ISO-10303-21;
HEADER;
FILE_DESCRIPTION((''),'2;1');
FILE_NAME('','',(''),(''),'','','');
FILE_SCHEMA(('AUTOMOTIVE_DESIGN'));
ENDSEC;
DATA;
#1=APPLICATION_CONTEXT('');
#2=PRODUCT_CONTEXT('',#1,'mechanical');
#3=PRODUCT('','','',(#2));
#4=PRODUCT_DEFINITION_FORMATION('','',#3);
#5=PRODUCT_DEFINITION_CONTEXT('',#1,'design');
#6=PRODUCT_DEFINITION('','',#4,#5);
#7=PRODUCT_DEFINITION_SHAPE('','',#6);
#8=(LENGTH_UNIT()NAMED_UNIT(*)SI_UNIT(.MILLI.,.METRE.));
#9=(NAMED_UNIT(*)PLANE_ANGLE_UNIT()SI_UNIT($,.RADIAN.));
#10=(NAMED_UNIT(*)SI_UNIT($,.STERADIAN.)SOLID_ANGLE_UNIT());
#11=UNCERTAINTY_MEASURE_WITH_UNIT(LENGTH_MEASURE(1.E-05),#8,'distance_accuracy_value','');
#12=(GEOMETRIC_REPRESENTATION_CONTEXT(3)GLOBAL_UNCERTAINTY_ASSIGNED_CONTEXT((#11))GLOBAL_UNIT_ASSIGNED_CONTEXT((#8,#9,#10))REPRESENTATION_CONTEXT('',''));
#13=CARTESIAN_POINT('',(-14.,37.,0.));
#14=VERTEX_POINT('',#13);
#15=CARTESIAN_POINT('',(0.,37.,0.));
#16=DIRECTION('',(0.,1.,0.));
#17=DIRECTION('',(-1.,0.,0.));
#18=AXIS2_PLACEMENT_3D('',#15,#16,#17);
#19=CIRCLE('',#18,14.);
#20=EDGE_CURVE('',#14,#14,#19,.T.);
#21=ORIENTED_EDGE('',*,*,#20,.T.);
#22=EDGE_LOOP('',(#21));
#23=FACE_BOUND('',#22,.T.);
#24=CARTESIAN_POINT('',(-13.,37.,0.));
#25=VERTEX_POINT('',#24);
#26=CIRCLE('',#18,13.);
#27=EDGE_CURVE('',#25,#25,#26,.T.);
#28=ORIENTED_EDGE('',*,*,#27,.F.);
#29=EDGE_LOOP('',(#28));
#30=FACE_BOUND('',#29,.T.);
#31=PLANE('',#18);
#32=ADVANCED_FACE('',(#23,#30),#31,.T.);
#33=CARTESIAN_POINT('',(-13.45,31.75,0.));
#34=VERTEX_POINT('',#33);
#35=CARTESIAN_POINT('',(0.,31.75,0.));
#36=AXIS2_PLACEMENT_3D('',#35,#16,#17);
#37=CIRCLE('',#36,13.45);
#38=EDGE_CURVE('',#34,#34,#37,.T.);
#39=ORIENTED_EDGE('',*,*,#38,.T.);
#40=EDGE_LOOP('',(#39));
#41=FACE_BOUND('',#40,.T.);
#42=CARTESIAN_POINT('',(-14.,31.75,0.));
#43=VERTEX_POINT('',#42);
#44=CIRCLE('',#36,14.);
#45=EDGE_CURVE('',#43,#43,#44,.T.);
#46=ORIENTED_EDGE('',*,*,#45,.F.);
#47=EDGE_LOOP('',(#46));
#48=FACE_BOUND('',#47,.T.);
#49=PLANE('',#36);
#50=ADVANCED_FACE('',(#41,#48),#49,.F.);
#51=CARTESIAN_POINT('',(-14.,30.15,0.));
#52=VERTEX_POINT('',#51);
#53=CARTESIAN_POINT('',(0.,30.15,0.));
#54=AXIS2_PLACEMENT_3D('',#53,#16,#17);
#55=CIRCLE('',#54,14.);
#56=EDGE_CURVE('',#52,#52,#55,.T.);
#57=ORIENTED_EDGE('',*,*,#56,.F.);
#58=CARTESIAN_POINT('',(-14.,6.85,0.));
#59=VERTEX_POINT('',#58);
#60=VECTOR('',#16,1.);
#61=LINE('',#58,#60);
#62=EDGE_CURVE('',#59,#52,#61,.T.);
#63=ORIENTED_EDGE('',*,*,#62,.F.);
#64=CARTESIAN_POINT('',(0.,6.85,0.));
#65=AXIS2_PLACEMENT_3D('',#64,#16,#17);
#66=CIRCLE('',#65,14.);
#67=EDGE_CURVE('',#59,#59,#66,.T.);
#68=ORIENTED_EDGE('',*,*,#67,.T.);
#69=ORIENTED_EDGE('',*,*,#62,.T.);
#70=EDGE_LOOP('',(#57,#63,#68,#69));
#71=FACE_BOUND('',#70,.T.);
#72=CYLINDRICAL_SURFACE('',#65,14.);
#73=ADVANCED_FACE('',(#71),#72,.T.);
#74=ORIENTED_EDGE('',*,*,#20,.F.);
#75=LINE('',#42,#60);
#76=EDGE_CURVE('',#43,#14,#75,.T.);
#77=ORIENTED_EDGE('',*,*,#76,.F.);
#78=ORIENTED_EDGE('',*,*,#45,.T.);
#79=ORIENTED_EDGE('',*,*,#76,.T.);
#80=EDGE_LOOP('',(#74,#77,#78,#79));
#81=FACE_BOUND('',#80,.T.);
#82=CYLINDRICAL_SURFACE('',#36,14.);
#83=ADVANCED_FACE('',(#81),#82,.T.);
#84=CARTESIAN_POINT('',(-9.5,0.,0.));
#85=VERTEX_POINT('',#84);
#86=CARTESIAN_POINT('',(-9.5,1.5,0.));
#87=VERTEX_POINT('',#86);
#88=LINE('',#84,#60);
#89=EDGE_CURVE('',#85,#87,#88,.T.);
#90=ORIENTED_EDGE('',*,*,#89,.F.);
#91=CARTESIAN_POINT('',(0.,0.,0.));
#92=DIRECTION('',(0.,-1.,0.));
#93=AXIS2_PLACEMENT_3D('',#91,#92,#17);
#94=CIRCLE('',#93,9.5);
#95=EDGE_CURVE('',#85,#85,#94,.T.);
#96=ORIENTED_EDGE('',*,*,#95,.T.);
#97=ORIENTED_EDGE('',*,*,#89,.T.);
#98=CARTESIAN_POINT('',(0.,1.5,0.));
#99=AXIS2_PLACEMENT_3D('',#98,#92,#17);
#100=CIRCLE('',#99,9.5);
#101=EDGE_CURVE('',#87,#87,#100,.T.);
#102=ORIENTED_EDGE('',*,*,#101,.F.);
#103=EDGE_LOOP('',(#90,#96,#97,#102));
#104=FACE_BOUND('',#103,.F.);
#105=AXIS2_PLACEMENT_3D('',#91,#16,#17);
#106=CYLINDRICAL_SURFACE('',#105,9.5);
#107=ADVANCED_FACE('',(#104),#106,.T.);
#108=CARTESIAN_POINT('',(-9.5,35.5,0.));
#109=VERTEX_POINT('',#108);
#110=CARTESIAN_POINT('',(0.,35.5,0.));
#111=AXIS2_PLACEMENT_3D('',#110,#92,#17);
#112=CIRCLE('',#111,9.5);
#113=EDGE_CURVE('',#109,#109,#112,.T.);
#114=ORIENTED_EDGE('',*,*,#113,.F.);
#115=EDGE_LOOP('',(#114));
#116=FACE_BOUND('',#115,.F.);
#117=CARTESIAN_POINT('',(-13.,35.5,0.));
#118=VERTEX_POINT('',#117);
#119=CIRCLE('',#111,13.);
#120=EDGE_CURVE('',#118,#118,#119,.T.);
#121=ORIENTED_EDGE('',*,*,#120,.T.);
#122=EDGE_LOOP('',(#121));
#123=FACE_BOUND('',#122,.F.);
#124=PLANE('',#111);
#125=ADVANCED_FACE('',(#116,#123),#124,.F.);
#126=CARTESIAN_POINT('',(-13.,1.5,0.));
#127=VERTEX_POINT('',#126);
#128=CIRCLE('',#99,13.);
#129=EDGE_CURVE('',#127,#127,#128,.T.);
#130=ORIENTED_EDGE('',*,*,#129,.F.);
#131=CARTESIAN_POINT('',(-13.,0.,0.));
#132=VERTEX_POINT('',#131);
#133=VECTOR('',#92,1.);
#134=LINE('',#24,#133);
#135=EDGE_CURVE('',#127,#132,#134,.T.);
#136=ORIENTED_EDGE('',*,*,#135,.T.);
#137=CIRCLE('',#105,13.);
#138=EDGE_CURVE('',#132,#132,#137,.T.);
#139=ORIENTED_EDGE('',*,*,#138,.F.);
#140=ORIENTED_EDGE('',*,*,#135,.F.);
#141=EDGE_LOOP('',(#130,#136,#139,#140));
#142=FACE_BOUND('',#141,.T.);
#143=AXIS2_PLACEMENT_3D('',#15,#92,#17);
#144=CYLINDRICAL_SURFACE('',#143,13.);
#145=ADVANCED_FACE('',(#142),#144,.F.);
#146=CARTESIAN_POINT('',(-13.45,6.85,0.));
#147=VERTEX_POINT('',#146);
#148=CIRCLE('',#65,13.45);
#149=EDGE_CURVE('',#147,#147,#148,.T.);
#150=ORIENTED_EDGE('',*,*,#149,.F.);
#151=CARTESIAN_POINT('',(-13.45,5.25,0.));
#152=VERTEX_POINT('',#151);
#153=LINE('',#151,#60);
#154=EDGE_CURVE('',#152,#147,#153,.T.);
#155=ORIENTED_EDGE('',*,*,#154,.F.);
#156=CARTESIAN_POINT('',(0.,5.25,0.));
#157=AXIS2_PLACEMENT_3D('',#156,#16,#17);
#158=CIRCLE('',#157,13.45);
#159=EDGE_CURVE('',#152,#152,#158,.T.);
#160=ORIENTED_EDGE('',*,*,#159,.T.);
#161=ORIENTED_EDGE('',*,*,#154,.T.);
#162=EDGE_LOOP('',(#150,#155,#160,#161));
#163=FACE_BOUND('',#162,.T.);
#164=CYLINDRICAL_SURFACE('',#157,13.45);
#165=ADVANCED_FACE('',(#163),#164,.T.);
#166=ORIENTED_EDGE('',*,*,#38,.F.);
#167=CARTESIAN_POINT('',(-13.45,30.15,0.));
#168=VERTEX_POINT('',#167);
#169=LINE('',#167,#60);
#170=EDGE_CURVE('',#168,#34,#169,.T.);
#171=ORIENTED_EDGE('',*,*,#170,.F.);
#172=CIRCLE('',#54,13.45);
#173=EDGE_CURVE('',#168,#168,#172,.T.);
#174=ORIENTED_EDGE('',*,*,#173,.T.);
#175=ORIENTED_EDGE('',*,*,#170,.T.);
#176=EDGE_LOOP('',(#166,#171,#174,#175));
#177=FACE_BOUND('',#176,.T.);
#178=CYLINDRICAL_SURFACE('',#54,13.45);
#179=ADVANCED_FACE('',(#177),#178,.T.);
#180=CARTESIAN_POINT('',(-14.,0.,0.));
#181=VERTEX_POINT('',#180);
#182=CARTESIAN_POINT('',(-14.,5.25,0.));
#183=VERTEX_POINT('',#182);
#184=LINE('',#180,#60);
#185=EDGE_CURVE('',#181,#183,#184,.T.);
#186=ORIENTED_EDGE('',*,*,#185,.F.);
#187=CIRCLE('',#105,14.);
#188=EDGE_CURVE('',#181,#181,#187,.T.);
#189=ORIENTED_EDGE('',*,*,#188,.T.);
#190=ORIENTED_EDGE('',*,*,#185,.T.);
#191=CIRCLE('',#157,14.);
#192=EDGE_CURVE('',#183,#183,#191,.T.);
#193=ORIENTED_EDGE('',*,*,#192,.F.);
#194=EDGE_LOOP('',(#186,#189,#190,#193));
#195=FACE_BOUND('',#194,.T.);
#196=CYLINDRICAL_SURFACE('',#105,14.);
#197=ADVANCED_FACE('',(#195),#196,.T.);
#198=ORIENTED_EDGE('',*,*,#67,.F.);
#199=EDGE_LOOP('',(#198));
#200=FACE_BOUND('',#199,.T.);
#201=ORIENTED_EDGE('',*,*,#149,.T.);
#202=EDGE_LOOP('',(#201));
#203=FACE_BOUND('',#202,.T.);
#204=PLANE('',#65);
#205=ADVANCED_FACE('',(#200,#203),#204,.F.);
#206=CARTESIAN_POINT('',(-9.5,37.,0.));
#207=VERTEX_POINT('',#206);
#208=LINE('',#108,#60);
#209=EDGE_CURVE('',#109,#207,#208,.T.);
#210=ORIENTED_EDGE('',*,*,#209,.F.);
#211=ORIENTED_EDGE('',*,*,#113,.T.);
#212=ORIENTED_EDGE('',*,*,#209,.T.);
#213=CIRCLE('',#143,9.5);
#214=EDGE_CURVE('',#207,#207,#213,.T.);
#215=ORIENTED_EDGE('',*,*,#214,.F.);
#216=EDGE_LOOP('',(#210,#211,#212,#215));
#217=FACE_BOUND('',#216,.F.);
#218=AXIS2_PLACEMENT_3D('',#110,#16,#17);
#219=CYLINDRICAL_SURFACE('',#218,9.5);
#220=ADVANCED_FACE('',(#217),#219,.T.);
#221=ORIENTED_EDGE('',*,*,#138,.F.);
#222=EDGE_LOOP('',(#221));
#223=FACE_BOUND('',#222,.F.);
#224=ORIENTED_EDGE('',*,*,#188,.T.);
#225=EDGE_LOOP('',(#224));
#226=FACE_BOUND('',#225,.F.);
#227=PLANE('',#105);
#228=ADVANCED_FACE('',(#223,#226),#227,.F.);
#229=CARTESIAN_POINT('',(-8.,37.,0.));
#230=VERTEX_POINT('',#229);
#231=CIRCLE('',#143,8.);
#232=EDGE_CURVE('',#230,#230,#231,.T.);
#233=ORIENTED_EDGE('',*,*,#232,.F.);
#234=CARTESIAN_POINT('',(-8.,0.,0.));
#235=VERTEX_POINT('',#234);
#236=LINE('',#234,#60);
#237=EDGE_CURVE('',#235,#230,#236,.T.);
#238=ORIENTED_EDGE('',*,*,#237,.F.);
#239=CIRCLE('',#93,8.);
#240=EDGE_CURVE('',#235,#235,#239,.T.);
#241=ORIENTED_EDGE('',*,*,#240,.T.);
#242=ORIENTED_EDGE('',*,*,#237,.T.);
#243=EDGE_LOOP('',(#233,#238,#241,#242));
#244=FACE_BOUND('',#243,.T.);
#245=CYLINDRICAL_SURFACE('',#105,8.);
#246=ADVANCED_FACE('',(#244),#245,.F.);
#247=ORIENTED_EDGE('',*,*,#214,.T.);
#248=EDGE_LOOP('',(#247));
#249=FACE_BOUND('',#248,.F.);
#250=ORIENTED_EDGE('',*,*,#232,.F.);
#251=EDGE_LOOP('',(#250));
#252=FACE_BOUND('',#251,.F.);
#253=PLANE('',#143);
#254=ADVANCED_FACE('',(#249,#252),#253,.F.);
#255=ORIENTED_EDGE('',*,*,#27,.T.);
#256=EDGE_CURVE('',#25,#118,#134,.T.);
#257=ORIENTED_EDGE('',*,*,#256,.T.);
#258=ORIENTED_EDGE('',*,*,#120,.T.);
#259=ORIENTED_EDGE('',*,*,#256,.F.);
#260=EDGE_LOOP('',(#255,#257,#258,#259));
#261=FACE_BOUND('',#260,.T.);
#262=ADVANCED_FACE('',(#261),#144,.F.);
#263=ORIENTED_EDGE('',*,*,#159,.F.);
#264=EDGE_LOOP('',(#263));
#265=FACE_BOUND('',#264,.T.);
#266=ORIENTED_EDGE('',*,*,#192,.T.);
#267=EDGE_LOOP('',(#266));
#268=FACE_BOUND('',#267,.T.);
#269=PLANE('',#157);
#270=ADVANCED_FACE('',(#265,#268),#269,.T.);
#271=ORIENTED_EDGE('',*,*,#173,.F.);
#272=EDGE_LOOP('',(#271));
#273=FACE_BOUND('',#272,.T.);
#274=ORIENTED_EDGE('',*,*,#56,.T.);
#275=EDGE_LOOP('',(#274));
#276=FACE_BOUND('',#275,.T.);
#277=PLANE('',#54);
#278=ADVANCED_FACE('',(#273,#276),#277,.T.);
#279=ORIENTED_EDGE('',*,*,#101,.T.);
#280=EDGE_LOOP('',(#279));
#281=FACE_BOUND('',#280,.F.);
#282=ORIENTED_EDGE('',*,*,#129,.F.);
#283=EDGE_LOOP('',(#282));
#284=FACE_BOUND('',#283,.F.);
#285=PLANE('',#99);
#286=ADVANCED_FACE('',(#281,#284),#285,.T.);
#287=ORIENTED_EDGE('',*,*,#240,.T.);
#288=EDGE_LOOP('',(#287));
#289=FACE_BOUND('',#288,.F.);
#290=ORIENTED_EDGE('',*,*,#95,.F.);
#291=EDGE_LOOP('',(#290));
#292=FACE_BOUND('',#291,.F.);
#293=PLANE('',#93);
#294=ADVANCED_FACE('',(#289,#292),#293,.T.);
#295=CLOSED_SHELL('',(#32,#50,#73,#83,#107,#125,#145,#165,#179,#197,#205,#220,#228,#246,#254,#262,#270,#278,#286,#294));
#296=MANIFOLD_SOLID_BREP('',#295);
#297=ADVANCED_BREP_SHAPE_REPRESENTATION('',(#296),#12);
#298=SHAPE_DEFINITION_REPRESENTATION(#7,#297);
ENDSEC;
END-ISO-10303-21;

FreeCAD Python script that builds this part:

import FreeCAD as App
import Part
import Sketcher

doc = App.newDocument("Part")
params = doc.addObject("Spreadsheet::Sheet", "Params")
for row, (alias, value) in enumerate([
    ("sketch1_height", "37 mm"),
    ("sketch1_height2", "34 mm"),
    ("revolution_angle", "360 deg"),
    ("sketch2_width", "1 mm"),
    ("sketch2_height", "37 mm"),
    ("sketch2_height2", "1.6 mm"),
    ("sketch2_width2", "0.55 mm"),
    ("sketch2_height3", "5.25 mm"),
    ("revolution2_angle", "360 deg"),
], start=1):
    params.set(f"A{row}", alias)
    params.set(f"B{row}", "=" + value)
    params.setAlias(f"B{row}", alias)

body = doc.addObject("PartDesign::Body", "Body")

# Sketch on XY plane
sketch1 = body.newObject("Sketcher::SketchObject", "Sketch")
sketch1.AttachmentSupport = (doc.getObject("XY_Plane"), [""])
sketch1.MapMode = "FlatFace"
sketch1.addGeometry(Part.LineSegment(App.Vector(-9.5, 0, 0), App.Vector(-8, 0, 0)), False)
sketch1.addGeometry(Part.LineSegment(App.Vector(-8, 0, 0), App.Vector(-8, 37, 0)), False)
sketch1.addGeometry(Part.LineSegment(App.Vector(-8, 37, 0), App.Vector(-9.5, 37, 0)), False)
sketch1.addGeometry(Part.LineSegment(App.Vector(-9.5, 37, 0), App.Vector(-9.5, 35.5, 0)), False)
sketch1.addGeometry(Part.LineSegment(App.Vector(-9.5, 35.5, 0), App.Vector(-13, 35.5, 0)), False)
sketch1.addGeometry(Part.LineSegment(App.Vector(-13, 35.5, 0), App.Vector(-13, 1.5, 0)), False)
sketch1.addGeometry(Part.LineSegment(App.Vector(-13, 1.5, 0), App.Vector(-9.5, 1.5, 0)), False)
sketch1.addGeometry(Part.LineSegment(App.Vector(-9.5, 1.5, 0), App.Vector(-9.5, 0, 0)), False)
sketch1.addConstraint(Sketcher.Constraint("Coincident", 0, 2, 1, 1))
sketch1.addConstraint(Sketcher.Constraint("Coincident", 1, 2, 2, 1))
sketch1.addConstraint(Sketcher.Constraint("Coincident", 2, 2, 3, 1))
sketch1.addConstraint(Sketcher.Constraint("Coincident", 3, 2, 4, 1))
sketch1.addConstraint(Sketcher.Constraint("Coincident", 4, 2, 5, 1))
sketch1.addConstraint(Sketcher.Constraint("Coincident", 5, 2, 6, 1))
sketch1.addConstraint(Sketcher.Constraint("Coincident", 6, 2, 7, 1))
sketch1.addConstraint(Sketcher.Constraint("Coincident", 7, 2, 0, 1))
sketch1.addConstraint(Sketcher.Constraint("Horizontal", 0))
sketch1.addConstraint(Sketcher.Constraint("Vertical", 1))
sketch1.addConstraint(Sketcher.Constraint("Horizontal", 2))
sketch1.addConstraint(Sketcher.Constraint("Vertical", 3))
sketch1.addConstraint(Sketcher.Constraint("Horizontal", 4))
sketch1.addConstraint(Sketcher.Constraint("Vertical", 5))
sketch1.addConstraint(Sketcher.Constraint("Horizontal", 6))
sketch1.addConstraint(Sketcher.Constraint("Vertical", 7))
sketch1.addConstraint(Sketcher.Constraint("PointOnObject", 0, 2, -1))
sketch1.addConstraint(Sketcher.Constraint("Vertical", 3, 2, 6, 2))
sketch1.addConstraint(Sketcher.Constraint("Equal", 2, 3))
sketch1.addConstraint(Sketcher.Constraint("Equal", 3, 7))
sketch1.addConstraint(Sketcher.Constraint("DistanceY", 1, 1, 1, 2, 37.0))
sketch1.addConstraint(Sketcher.Constraint("DistanceY", 5, 2, 5, 1, 34.0))
sketch1.addConstraint(Sketcher.Constraint("DistanceX", 0, 2, -1, 1, 8.0))
sketch1.addConstraint(Sketcher.Constraint("DistanceX", 4, 2, 1, 2, 5.0))
sketch1.setExpression("Constraints[20]", "Params.sketch1_height")
sketch1.setExpression("Constraints[21]", "Params.sketch1_height2")
revolution = body.newObject("PartDesign::Revolution", "Revolution")
revolution.Profile = sketch1
revolution.ReferenceAxis = (sketch1, ["V_Axis"])
revolution.setExpression("Angle", "Params.revolution_angle")

# Sketch on XY plane
sketch2 = body.newObject("Sketcher::SketchObject", "Sketch001")
sketch2.AttachmentSupport = (doc.getObject("XY_Plane"), [""])
sketch2.MapMode = "FlatFace"
sketch2.addGeometry(Part.LineSegment(App.Vector(-14, 5.2, 0), App.Vector(-14, 0, 0)), False)
sketch2.addGeometry(Part.LineSegment(App.Vector(-14, 0, 0), App.Vector(-13, 0, 0)), False)
sketch2.addGeometry(Part.LineSegment(App.Vector(-13, 0, 0), App.Vector(-13, 37, 0)), False)
sketch2.addGeometry(Part.LineSegment(App.Vector(-13, 37, 0), App.Vector(-14, 37, 0)), False)
sketch2.addGeometry(Part.LineSegment(App.Vector(-14, 37, 0), App.Vector(-14, 31.8, 0)), False)
sketch2.addGeometry(Part.LineSegment(App.Vector(-14, 31.8, 0), App.Vector(-13.4, 31.8, 0)), False)
sketch2.addGeometry(Part.LineSegment(App.Vector(-13.4, 31.8, 0), App.Vector(-13.4, 30.1, 0)), False)
sketch2.addGeometry(Part.LineSegment(App.Vector(-13.4, 30.1, 0), App.Vector(-14, 30.1, 0)), False)
sketch2.addGeometry(Part.LineSegment(App.Vector(-14, 30.1, 0), App.Vector(-14, 6.8, 0)), False)
sketch2.addGeometry(Part.LineSegment(App.Vector(-14, 6.8, 0), App.Vector(-13.4, 6.8, 0)), False)
sketch2.addGeometry(Part.LineSegment(App.Vector(-13.4, 6.8, 0), App.Vector(-13.4, 5.2, 0)), False)
sketch2.addGeometry(Part.LineSegment(App.Vector(-13.4, 5.2, 0), App.Vector(-14, 5.2, 0)), False)
sketch2.addConstraint(Sketcher.Constraint("Coincident", 0, 2, 1, 1))
sketch2.addConstraint(Sketcher.Constraint("Coincident", 1, 2, 2, 1))
sketch2.addConstraint(Sketcher.Constraint("Coincident", 2, 2, 3, 1))
sketch2.addConstraint(Sketcher.Constraint("Coincident", 3, 2, 4, 1))
sketch2.addConstraint(Sketcher.Constraint("Coincident", 4, 2, 5, 1))
sketch2.addConstraint(Sketcher.Constraint("Coincident", 5, 2, 6, 1))
sketch2.addConstraint(Sketcher.Constraint("Coincident", 6, 2, 7, 1))
sketch2.addConstraint(Sketcher.Constraint("Coincident", 7, 2, 8, 1))
sketch2.addConstraint(Sketcher.Constraint("Coincident", 8, 2, 9, 1))
sketch2.addConstraint(Sketcher.Constraint("Coincident", 9, 2, 10, 1))
sketch2.addConstraint(Sketcher.Constraint("Coincident", 10, 2, 11, 1))
sketch2.addConstraint(Sketcher.Constraint("Coincident", 11, 2, 0, 1))
sketch2.addConstraint(Sketcher.Constraint("Vertical", 0))
sketch2.addConstraint(Sketcher.Constraint("Horizontal", 1))
sketch2.addConstraint(Sketcher.Constraint("Vertical", 2))
sketch2.addConstraint(Sketcher.Constraint("Horizontal", 3))
sketch2.addConstraint(Sketcher.Constraint("Vertical", 4))
sketch2.addConstraint(Sketcher.Constraint("Horizontal", 5))
sketch2.addConstraint(Sketcher.Constraint("Vertical", 6))
sketch2.addConstraint(Sketcher.Constraint("Horizontal", 7))
sketch2.addConstraint(Sketcher.Constraint("Vertical", 8))
sketch2.addConstraint(Sketcher.Constraint("Horizontal", 9))
sketch2.addConstraint(Sketcher.Constraint("Vertical", 10))
sketch2.addConstraint(Sketcher.Constraint("Horizontal", 11))
sketch2.addConstraint(Sketcher.Constraint("PointOnObject", 0, 2, -1))
sketch2.addConstraint(Sketcher.Constraint("Vertical", 0, 2, 3, 2))
sketch2.addConstraint(Sketcher.Constraint("Vertical", 4, 2, 7, 2))
sketch2.addConstraint(Sketcher.Constraint("Vertical", 6, 2, 9, 2))
sketch2.addConstraint(Sketcher.Constraint("Equal", 0, 4))
sketch2.addConstraint(Sketcher.Constraint("Equal", 6, 10))
sketch2.addConstraint(Sketcher.Constraint("DistanceX", 1, 1, 1, 2, 1.0))
sketch2.addConstraint(Sketcher.Constraint("DistanceY", 2, 1, 2, 2, 37.0))
sketch2.addConstraint(Sketcher.Constraint("DistanceY", 6, 2, 6, 1, 1.6))
sketch2.addConstraint(Sketcher.Constraint("DistanceX", 1, 2, -1, 1, 13.0))
sketch2.addConstraint(Sketcher.Constraint("DistanceX", 5, 1, 5, 2, 0.55))
sketch2.addConstraint(Sketcher.Constraint("DistanceY", 0, 2, 0, 1, 5.25))
sketch2.setExpression("Constraints[30]", "Params.sketch2_width")
sketch2.setExpression("Constraints[31]", "Params.sketch2_height")
sketch2.setExpression("Constraints[32]", "Params.sketch2_height2")
sketch2.setExpression("Constraints[34]", "Params.sketch2_width2")
sketch2.setExpression("Constraints[35]", "Params.sketch2_height3")
revolution2 = body.newObject("PartDesign::Revolution", "Revolution001")
revolution2.Profile = sketch2
revolution2.ReferenceAxis = (sketch2, ["V_Axis"])
revolution2.setExpression("Angle", "Params.revolution2_angle")

doc.recompute()
